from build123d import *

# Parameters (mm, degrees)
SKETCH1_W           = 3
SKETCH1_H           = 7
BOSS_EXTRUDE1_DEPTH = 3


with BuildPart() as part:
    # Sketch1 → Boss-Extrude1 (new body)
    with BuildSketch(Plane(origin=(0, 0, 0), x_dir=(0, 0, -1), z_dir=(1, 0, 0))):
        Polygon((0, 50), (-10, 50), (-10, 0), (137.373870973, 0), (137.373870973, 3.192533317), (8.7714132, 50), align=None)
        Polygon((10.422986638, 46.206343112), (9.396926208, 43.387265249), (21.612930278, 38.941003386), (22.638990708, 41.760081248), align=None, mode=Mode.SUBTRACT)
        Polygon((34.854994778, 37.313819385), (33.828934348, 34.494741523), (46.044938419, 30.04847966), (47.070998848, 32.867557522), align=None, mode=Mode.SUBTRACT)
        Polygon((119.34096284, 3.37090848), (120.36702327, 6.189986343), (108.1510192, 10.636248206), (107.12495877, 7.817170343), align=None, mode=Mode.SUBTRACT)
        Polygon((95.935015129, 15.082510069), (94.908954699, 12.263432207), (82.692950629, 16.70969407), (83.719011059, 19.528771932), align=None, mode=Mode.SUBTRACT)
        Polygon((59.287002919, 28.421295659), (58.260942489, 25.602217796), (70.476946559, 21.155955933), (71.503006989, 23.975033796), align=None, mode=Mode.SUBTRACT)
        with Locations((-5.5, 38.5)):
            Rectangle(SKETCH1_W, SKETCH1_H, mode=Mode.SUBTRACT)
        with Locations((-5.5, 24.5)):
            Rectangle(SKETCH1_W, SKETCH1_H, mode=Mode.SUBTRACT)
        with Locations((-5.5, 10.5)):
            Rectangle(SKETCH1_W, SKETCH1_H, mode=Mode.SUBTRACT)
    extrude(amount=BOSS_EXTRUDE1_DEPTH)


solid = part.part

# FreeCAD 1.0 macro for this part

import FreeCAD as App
import Part
import Sketcher
Q = App.Units.Quantity


def add_polygon(sketch, points):
    """Adds a closed chain of lines whose ends are joined by coincident constraints."""
    first, n = sketch.GeometryCount, len(points)
    for a, b in zip(points, points[1:] + points[:1]):
        sketch.addGeometry(Part.LineSegment(App.Vector(*a, 0), App.Vector(*b, 0)), False)
    for i in range(n):
        sketch.addConstraint(Sketcher.Constraint("Coincident", first + i, 2, first + (i + 1) % n, 1))

doc = App.newDocument("Part")
body = doc.addObject("PartDesign::Body", "Body")

sketch1 = body.newObject("Sketcher::SketchObject", "Sketch")
sketch1.AttachmentSupport = (doc.getObject("YZ_Plane"), [""])
sketch1.MapMode = "FlatFace"
add_polygon(sketch1, [(50, 10), (0, 10), (0, -137.4), (3.2, -137.4), (50, -8.8)])
add_polygon(sketch1, [(7, 4), (7, 7), (14, 7), (14, 4)])
add_polygon(sketch1, [(21, 4), (21, 7), (28, 7), (28, 4)])
add_polygon(sketch1, [(6.2, -120.4), (3.4, -119.3), (7.8, -107.1), (10.6, -108.2)])
add_polygon(sketch1, [(19.5, -83.7), (15.1, -95.9), (12.3, -94.9), (16.7, -82.7)])
add_polygon(sketch1, [(34.5, -33.8), (37.3, -34.9), (32.9, -47.1), (30, -46)])
add_polygon(sketch1, [(35, 4), (35, 7), (42, 7), (42, 4)])
add_polygon(sketch1, [(43.4, -9.4), (46.2, -10.4), (41.8, -22.6), (38.9, -21.6)])
add_polygon(sketch1, [(25.6, -58.3), (28.4, -59.3), (24, -71.5), (21.2, -70.5)])
sketch1.addConstraint(Sketcher.Constraint("Horizontal", 0))
sketch1.addConstraint(Sketcher.Constraint("Vertical", 1))
sketch1.addConstraint(Sketcher.Constraint("Horizontal", 2))
sketch1.addConstraint(Sketcher.Constraint("Vertical", 4))
sketch1.addConstraint(Sketcher.Constraint("Vertical", 5))
sketch1.addConstraint(Sketcher.Constraint("Horizontal", 6))
sketch1.addConstraint(Sketcher.Constraint("Vertical", 7))
sketch1.addConstraint(Sketcher.Constraint("Horizontal", 8))
sketch1.addConstraint(Sketcher.Constraint("Vertical", 9))
sketch1.addConstraint(Sketcher.Constraint("Horizontal", 10))
sketch1.addConstraint(Sketcher.Constraint("Vertical", 11))
sketch1.addConstraint(Sketcher.Constraint("Horizontal", 12))
sketch1.addConstraint(Sketcher.Constraint("Vertical", 25))
sketch1.addConstraint(Sketcher.Constraint("Horizontal", 26))
sketch1.addConstraint(Sketcher.Constraint("Vertical", 27))
sketch1.addConstraint(Sketcher.Constraint("Horizontal", 28))
sketch1.addConstraint(Sketcher.Constraint("PointOnObject", 0, 2, -2))
sketch1.addConstraint(Sketcher.Constraint("Perpendicular", 3, 13))
sketch1.addConstraint(Sketcher.Constraint("Perpendicular", 13, 14))
sketch1.addConstraint(Sketcher.Constraint("Perpendicular", 14, 15))
sketch1.addConstraint(Sketcher.Constraint("Perpendicular", 15, 16))
sketch1.addConstraint(Sketcher.Constraint("Parallel", 16, 17))
sketch1.addConstraint(Sketcher.Constraint("Perpendicular", 17, 18))
sketch1.addConstraint(Sketcher.Constraint("Perpendicular", 18, 19))
sketch1.addConstraint(Sketcher.Constraint("Perpendicular", 19, 20))
sketch1.addConstraint(Sketcher.Constraint("Parallel", 20, 21))
sketch1.addConstraint(Sketcher.Constraint("Perpendicular", 21, 22))
sketch1.addConstraint(Sketcher.Constraint("Perpendicular", 22, 23))
sketch1.addConstraint(Sketcher.Constraint("Perpendicular", 23, 24))
sketch1.addConstraint(Sketcher.Constraint("Perpendicular", 24, 29))
sketch1.addConstraint(Sketcher.Constraint("Perpendicular", 29, 30))
sketch1.addConstraint(Sketcher.Constraint("Perpendicular", 30, 31))
sketch1.addConstraint(Sketcher.Constraint("Perpendicular", 31, 32))
sketch1.addConstraint(Sketcher.Constraint("Perpendicular", 32, 33))
sketch1.addConstraint(Sketcher.Constraint("Perpendicular", 33, 34))
sketch1.addConstraint(Sketcher.Constraint("Perpendicular", 34, 35))
sketch1.addConstraint(Sketcher.Constraint("Perpendicular", 35, 36))
sketch1.addConstraint(Sketcher.Constraint("Horizontal", 6, 2, 9, 2))
sketch1.addConstraint(Sketcher.Constraint("Horizontal", 8, 2, 11, 2))
sketch1.addConstraint(Sketcher.Constraint("Horizontal", 10, 2, 25, 2))
sketch1.addConstraint(Sketcher.Constraint("Horizontal", 12, 2, 27, 2))
sketch1.addConstraint(Sketcher.Constraint("Equal", 8, 10))
sketch1.addConstraint(Sketcher.Constraint("Equal", 12, 26))
sketch1.addConstraint(Sketcher.Constraint("Equal", 16, 17))
sketch1.addConstraint(Sketcher.Constraint("Equal", 15, 18))
sketch1.addConstraint(Sketcher.Constraint("Equal", 20, 21))
sketch1.addConstraint(Sketcher.Constraint("Equal", 19, 22))
sketch1.addConstraint(Sketcher.Constraint("Equal", 23, 29))
sketch1.addConstraint(Sketcher.Constraint("Equal", 24, 30))
sketch1.addConstraint(Sketcher.Constraint("Equal", 31, 33))
sketch1.addConstraint(Sketcher.Constraint("Equal", 32, 34))
sketch1.addConstraint(Sketcher.Constraint("DistanceX", 0, 2, 0, 1, Q("50 mm")))
sketch1.addConstraint(Sketcher.Constraint("DistanceX", 6, 1, 6, 2, Q("7 mm")))
sketch1.addConstraint(Sketcher.Constraint("DistanceY", 5, 1, 5, 2, Q("3 mm")))
sketch1.addConstraint(Sketcher.Constraint("Angle", 3, Q("70 deg")))
sketch1.addConstraint(Sketcher.Constraint("Distance", 13, Q("3 mm")))
sketch1.addConstraint(Sketcher.Constraint("Distance", 14, Q("13 mm")))
sketch1.addConstraint(Sketcher.Constraint("DistanceY", -1, 1, 0, 2, Q("10 mm")))
sketch1.addConstraint(Sketcher.Constraint("DistanceX", -1, 1, 5, 2, Q("7 mm")))
sketch1.addConstraint(Sketcher.Constraint("DistanceY", -1, 1, 5, 2, Q("7 mm")))
sketch1.addConstraint(Sketcher.Constraint("DistanceX", -1, 1, 9, 2, Q("21 mm")))
sketch1.addConstraint(Sketcher.Constraint("DistanceX", -1, 1, 25, 2, Q("35 mm")))
sketch1.addConstraint(Sketcher.Constraint("DistanceY", 22, 2, -1, 1, Q("47.070999 mm")))
sketch1.addConstraint(Sketcher.Constraint("DistanceY", 1, 2, 1, 1, Q("147.373871 mm")))
sketch1.addConstraint(Sketcher.Constraint("DistanceX", 13, 2, 17, 2, Q("11.711602 mm")))
sketch1.addConstraint(Sketcher.Constraint("DistanceX", 19, 2, 33, 2, Q("11.711602 mm")))
sketch1.addConstraint(Sketcher.Constraint("DistanceX", 2, 1, 2, 2, Q("3.192533 mm")))
sketch1.addConstraint(Sketcher.Constraint("DistanceX", -1, 1, 13, 2, Q("3.370908 mm")))
sketch1.addConstraint(Sketcher.Constraint("DistanceY", 14, 2, -1, 1, Q("107.124959 mm")))
sketch1.addConstraint(Sketcher.Constraint("DistanceY", 19, 2, -1, 1, Q("82.692951 mm")))
sketch1.addConstraint(Sketcher.Constraint("DistanceX", -1, 1, 21, 2, Q("37.313819 mm")))
sketch1.addConstraint(Sketcher.Constraint("DistanceX", -1, 1, 30, 2, Q("41.760081 mm")))
sketch1.addConstraint(Sketcher.Constraint("DistanceY", 30, 2, -1, 1, Q("22.638991 mm")))
sketch1.addConstraint(Sketcher.Constraint("DistanceY", 20, 2, 33, 2, Q("24.432008 mm")))
pad1 = body.newObject("PartDesign::Pad", "Pad")
pad1.Profile = sketch1
pad1.Length = 3

doc.recompute()
